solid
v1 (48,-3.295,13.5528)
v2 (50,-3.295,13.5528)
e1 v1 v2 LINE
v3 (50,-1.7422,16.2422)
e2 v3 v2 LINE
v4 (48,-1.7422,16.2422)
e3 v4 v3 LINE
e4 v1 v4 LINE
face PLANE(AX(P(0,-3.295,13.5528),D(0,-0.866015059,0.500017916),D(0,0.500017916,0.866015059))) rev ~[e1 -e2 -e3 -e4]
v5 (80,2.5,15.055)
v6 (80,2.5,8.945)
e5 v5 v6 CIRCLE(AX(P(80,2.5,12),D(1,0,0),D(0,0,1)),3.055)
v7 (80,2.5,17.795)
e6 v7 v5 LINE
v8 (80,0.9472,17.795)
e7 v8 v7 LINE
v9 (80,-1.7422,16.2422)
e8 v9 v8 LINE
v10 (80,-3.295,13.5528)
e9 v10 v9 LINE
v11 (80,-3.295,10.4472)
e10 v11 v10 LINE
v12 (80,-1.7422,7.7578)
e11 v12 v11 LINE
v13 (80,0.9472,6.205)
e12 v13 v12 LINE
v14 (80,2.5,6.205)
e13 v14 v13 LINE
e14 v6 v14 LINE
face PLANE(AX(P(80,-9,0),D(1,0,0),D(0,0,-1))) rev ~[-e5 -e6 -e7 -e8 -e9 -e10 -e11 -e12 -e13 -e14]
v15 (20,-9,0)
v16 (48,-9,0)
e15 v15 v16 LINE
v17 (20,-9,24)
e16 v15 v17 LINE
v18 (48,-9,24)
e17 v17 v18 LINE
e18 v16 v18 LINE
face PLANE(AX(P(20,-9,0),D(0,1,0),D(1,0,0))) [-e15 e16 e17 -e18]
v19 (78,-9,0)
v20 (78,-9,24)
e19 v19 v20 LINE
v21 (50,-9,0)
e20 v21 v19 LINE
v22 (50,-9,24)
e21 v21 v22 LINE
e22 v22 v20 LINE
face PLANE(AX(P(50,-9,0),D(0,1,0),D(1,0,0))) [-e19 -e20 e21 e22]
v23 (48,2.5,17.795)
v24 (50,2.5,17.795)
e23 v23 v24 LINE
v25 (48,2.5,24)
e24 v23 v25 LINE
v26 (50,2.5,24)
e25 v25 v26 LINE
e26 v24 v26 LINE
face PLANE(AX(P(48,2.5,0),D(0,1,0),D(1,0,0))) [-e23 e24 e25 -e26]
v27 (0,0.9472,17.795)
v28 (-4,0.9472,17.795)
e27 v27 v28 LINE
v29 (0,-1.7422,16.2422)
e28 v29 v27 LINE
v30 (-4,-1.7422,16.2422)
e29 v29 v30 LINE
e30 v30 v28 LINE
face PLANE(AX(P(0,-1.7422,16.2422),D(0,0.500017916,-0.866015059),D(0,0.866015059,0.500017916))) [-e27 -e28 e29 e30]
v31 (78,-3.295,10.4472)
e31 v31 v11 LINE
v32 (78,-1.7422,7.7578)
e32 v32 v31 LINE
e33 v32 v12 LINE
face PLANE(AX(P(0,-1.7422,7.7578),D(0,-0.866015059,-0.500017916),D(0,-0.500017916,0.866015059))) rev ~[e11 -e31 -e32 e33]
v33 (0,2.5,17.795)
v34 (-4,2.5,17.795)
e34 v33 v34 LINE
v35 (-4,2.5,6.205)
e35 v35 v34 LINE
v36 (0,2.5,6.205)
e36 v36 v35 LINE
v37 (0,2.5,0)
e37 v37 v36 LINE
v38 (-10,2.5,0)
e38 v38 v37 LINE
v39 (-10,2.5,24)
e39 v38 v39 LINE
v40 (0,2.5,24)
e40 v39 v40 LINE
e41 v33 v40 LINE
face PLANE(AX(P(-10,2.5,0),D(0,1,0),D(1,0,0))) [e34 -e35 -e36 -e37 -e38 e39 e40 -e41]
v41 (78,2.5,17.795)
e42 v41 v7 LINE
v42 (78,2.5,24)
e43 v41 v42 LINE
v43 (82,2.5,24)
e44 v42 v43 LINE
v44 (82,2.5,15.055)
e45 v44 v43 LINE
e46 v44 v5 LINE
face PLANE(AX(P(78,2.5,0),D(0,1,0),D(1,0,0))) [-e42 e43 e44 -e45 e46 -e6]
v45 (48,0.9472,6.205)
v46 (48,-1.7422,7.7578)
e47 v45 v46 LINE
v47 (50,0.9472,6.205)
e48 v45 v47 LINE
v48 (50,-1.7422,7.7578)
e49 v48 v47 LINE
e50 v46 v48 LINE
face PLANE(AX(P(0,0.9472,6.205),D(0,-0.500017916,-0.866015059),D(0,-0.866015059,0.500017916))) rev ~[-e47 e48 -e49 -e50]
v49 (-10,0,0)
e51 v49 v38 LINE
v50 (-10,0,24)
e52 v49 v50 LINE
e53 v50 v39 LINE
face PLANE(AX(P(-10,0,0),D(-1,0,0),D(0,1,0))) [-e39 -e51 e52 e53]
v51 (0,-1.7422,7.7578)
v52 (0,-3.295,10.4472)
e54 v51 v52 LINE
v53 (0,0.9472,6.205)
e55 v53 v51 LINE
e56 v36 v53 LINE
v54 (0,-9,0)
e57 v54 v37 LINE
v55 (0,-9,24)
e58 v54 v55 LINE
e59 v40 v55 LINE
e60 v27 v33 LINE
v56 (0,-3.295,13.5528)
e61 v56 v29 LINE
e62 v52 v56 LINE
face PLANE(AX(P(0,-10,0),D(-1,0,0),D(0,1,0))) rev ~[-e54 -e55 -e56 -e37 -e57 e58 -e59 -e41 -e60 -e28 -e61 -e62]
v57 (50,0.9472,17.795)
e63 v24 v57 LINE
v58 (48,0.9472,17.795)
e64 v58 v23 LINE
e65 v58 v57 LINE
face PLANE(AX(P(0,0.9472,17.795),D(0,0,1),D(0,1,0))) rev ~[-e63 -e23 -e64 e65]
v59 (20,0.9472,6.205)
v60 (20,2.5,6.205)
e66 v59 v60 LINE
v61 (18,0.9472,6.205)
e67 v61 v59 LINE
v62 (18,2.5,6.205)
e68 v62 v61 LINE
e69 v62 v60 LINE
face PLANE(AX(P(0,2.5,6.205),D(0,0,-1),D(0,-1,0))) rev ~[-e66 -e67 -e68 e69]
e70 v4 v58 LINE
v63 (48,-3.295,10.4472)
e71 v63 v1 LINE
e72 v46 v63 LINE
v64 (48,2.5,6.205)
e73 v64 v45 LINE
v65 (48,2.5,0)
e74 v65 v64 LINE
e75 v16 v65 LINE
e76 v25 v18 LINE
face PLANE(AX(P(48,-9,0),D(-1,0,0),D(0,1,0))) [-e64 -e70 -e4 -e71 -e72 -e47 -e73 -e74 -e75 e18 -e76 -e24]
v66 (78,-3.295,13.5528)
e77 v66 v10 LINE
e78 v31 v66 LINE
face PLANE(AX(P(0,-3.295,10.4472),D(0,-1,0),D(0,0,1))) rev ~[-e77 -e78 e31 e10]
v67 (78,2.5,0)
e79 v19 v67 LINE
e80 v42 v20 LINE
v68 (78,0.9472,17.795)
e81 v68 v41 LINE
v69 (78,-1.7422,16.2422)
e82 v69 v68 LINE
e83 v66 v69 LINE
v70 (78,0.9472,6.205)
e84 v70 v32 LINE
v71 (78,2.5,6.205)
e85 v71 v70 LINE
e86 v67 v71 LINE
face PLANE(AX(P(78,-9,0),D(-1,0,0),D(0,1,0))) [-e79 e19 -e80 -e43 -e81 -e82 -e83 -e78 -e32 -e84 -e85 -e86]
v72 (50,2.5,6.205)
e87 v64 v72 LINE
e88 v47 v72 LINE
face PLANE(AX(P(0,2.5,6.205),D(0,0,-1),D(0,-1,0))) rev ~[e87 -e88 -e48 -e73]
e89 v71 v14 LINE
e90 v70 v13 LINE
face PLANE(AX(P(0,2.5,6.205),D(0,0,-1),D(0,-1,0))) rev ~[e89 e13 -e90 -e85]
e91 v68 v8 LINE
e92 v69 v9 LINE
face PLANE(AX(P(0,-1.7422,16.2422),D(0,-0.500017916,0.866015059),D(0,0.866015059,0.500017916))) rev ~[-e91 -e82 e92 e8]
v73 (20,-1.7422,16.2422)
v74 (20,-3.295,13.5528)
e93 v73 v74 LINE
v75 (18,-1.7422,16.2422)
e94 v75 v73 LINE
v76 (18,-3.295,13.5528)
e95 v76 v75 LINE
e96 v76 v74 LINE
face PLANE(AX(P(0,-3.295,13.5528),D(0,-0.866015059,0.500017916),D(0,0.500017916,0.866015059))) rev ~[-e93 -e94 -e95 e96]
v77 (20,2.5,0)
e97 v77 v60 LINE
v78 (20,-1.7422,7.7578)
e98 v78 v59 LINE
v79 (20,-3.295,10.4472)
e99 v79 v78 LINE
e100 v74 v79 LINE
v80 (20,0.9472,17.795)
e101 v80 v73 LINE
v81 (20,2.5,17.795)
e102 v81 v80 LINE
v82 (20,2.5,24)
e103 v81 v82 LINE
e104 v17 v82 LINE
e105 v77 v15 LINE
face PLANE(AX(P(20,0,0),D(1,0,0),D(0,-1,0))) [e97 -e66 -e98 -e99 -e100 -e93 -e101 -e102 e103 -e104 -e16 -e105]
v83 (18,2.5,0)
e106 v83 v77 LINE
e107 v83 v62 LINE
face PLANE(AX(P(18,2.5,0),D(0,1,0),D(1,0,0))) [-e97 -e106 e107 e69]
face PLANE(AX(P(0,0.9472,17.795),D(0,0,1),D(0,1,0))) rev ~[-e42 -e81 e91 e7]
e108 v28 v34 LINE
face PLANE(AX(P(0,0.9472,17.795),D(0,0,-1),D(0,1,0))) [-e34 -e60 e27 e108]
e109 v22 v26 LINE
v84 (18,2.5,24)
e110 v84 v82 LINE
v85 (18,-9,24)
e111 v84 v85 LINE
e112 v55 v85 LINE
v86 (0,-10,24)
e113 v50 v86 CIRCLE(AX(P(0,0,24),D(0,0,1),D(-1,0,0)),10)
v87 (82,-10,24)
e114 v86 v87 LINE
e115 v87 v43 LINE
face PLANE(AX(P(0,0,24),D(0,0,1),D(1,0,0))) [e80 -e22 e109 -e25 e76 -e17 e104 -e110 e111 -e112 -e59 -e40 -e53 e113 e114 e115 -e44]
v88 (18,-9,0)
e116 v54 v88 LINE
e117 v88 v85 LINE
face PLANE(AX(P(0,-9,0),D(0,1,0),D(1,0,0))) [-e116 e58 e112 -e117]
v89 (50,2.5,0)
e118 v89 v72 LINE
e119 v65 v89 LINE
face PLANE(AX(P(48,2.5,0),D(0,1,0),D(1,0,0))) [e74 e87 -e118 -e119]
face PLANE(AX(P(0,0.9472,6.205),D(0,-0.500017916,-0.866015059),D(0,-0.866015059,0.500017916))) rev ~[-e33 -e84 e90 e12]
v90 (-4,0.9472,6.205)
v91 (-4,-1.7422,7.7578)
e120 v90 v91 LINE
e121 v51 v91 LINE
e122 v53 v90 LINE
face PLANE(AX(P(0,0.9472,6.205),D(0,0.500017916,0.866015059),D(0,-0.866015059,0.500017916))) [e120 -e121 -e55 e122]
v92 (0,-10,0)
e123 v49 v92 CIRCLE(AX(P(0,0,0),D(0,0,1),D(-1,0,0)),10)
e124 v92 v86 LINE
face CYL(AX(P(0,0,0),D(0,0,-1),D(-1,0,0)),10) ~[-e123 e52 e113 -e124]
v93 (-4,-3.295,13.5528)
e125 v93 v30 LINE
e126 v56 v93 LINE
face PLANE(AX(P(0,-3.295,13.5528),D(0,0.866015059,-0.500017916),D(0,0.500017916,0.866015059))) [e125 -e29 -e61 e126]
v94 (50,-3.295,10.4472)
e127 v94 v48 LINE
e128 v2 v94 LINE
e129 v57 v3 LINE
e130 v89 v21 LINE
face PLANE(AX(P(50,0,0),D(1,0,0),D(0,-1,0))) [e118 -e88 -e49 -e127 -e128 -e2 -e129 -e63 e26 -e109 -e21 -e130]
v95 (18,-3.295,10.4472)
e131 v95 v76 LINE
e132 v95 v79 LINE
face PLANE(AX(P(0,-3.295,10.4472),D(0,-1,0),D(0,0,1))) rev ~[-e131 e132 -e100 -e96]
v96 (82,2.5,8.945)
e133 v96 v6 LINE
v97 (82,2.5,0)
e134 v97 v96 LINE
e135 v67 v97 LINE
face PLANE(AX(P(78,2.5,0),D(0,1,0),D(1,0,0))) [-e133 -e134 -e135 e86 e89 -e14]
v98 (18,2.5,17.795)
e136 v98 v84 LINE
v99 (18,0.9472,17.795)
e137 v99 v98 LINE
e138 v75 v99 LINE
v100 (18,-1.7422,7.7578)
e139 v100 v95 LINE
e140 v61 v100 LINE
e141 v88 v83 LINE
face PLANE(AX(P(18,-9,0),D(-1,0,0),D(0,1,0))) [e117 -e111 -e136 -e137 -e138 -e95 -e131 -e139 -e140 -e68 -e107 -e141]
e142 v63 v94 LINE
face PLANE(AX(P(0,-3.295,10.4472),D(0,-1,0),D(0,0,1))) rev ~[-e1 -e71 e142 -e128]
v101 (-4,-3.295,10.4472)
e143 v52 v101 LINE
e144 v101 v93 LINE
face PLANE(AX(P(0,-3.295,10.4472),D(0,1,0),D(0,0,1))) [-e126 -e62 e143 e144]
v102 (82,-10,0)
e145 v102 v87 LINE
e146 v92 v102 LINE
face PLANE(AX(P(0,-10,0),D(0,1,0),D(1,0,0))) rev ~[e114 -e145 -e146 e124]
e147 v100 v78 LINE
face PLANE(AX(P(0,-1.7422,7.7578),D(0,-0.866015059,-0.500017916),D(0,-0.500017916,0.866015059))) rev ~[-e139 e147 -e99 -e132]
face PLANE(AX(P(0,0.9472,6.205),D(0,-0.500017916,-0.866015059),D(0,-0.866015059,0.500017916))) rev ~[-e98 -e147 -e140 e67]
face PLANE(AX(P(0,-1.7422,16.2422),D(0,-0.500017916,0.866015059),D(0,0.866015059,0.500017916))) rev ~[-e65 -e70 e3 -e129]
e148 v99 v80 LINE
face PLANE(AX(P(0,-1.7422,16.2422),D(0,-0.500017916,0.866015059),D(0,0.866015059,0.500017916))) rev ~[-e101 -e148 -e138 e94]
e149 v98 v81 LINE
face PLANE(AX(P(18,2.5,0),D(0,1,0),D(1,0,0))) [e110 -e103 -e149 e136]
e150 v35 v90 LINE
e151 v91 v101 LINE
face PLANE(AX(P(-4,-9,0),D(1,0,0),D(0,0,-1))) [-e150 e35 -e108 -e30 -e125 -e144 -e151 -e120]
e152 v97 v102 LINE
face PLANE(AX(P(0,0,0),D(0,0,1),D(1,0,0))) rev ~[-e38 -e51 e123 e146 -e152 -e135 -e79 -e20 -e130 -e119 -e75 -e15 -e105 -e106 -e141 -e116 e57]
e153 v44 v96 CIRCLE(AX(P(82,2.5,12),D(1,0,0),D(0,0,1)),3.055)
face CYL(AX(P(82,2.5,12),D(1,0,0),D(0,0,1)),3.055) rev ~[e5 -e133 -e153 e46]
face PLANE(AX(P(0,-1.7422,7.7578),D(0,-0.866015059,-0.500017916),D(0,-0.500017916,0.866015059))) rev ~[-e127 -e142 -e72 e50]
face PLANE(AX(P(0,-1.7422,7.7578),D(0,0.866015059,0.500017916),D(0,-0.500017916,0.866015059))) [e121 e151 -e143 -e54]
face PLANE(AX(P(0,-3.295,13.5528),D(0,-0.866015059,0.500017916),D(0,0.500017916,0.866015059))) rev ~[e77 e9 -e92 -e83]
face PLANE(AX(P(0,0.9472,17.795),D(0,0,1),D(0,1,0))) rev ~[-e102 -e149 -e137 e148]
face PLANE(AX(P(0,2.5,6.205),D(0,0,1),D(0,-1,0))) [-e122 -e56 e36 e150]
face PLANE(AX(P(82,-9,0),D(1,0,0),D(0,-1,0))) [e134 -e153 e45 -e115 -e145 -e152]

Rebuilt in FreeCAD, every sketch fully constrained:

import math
import FreeCAD as App
import Part
import Sketcher

V = App.Vector
Q = App.Units.Quantity

doc = App.newDocument("Part")
body = doc.addObject("PartDesign::Body", "Body")

sketch1 = body.newObject("Sketcher::SketchObject", "Sketch")
sketch1.AttachmentSupport = (doc.getObject("XY_Plane"), [""])
sketch1.MapMode = "FlatFace"
sketch1.addGeometry(Part.LineSegment(V(0, -9, 0), V(0, -10, 0)), False)
sketch1.addGeometry(Part.LineSegment(V(0, -10, 0), V(82, -10, 0)), False)
sketch1.addGeometry(Part.LineSegment(V(82, -10, 0), V(82, 2.5, 0)), False)
sketch1.addGeometry(Part.LineSegment(V(82, 2.5, 0), V(78, 2.5, 0)), False)
sketch1.addGeometry(Part.LineSegment(V(78, 2.5, 0), V(78, -9, 0)), False)
sketch1.addGeometry(Part.LineSegment(V(78, -9, 0), V(50, -9, 0)), False)
sketch1.addGeometry(Part.LineSegment(V(50, -9, 0), V(50, 2.5, 0)), False)
sketch1.addGeometry(Part.LineSegment(V(50, 2.5, 0), V(48, 2.5, 0)), False)
sketch1.addGeometry(Part.LineSegment(V(48, 2.5, 0), V(48, -9, 0)), False)
sketch1.addGeometry(Part.LineSegment(V(48, -9, 0), V(20, -9, 0)), False)
sketch1.addGeometry(Part.LineSegment(V(20, -9, 0), V(20, 2.5, 0)), False)
sketch1.addGeometry(Part.LineSegment(V(20, 2.5, 0), V(18, 2.5, 0)), False)
sketch1.addGeometry(Part.LineSegment(V(18, 2.5, 0), V(18, -9, 0)), False)
sketch1.addGeometry(Part.LineSegment(V(18, -9, 0), V(0, -9, 0)), False)
sketch1.addConstraint(Sketcher.Constraint("Coincident", 0, 2, 1, 1))
sketch1.addConstraint(Sketcher.Constraint("Coincident", 1, 2, 2, 1))
sketch1.addConstraint(Sketcher.Constraint("Coincident", 2, 2, 3, 1))
sketch1.addConstraint(Sketcher.Constraint("Coincident", 3, 2, 4, 1))
sketch1.addConstraint(Sketcher.Constraint("Coincident", 4, 2, 5, 1))
sketch1.addConstraint(Sketcher.Constraint("Coincident", 5, 2, 6, 1))
sketch1.addConstraint(Sketcher.Constraint("Coincident", 6, 2, 7, 1))
sketch1.addConstraint(Sketcher.Constraint("Coincident", 7, 2, 8, 1))
sketch1.addConstraint(Sketcher.Constraint("Coincident", 8, 2, 9, 1))
sketch1.addConstraint(Sketcher.Constraint("Coincident", 9, 2, 10, 1))
sketch1.addConstraint(Sketcher.Constraint("Coincident", 10, 2, 11, 1))
sketch1.addConstraint(Sketcher.Constraint("Coincident", 11, 2, 12, 1))
sketch1.addConstraint(Sketcher.Constraint("Coincident", 12, 2, 13, 1))
sketch1.addConstraint(Sketcher.Constraint("Coincident", 13, 2, 0, 1))
sketch1.addConstraint(Sketcher.Constraint("Vertical", 0))
sketch1.addConstraint(Sketcher.Constraint("Horizontal", 1))
sketch1.addConstraint(Sketcher.Constraint("Vertical", 2))
sketch1.addConstraint(Sketcher.Constraint("Horizontal", 3))
sketch1.addConstraint(Sketcher.Constraint("Vertical", 4))
sketch1.addConstraint(Sketcher.Constraint("Horizontal", 5))
sketch1.addConstraint(Sketcher.Constraint("Vertical", 6))
sketch1.addConstraint(Sketcher.Constraint("Horizontal", 7))
sketch1.addConstraint(Sketcher.Constraint("Vertical", 8))
sketch1.addConstraint(Sketcher.Constraint("Horizontal", 9))
sketch1.addConstraint(Sketcher.Constraint("Vertical", 10))
sketch1.addConstraint(Sketcher.Constraint("Horizontal", 11))
sketch1.addConstraint(Sketcher.Constraint("Vertical", 12))
sketch1.addConstraint(Sketcher.Constraint("Horizontal", 13))
sketch1.addConstraint(Sketcher.Constraint("PointOnObject", 0, 2, -2))
sketch1.addConstraint(Sketcher.Constraint("Horizontal", 3, 2, 6, 2))
sketch1.addConstraint(Sketcher.Constraint("Horizontal", 5, 2, 8, 2))
sketch1.addConstraint(Sketcher.Constraint("Horizontal", 7, 2, 10, 2))
sketch1.addConstraint(Sketcher.Constraint("Horizontal", 9, 2, 12, 2))
sketch1.addConstraint(Sketcher.Constraint("Equal", 5, 9))
sketch1.addConstraint(Sketcher.Constraint("Equal", 7, 11))
sketch1.addConstraint(Sketcher.Constraint("DistanceX", 3, 2, 3, 1, Q("4 mm")))
sketch1.addConstraint(Sketcher.Constraint("DistanceX", 5, 2, 5, 1, Q("28 mm")))
sketch1.addConstraint(Sketcher.Constraint("DistanceX", 7, 2, 7, 1, Q("2 mm")))
sketch1.addConstraint(Sketcher.Constraint("DistanceX", 13, 2, 13, 1, Q("18 mm")))
sketch1.addConstraint(Sketcher.Constraint("DistanceY", 0, 2, 0, 1, Q("1 mm")))
sketch1.addConstraint(Sketcher.Constraint("DistanceY", 4, 2, 4, 1, Q("11.5 mm")))
sketch1.addConstraint(Sketcher.Constraint("DistanceY", 0, 2, -1, 1, Q("10 mm")))
pad1 = body.newObject("PartDesign::Pad", "Pad")
pad1.Profile = sketch1
pad1.Length = 24

sketch2 = body.newObject("Sketcher::SketchObject", "Sketch001")
sketch2.AttachmentSupport = (doc.getObject("XY_Plane"), [""])
sketch2.MapMode = "FlatFace"
sketch2.addGeometry(Part.LineSegment(V(0, -10, 0), V(0, 2.5, 0)), False)
sketch2.addGeometry(Part.LineSegment(V(0, 2.5, 0), V(-10, 2.5, 0)), False)
sketch2.addGeometry(Part.LineSegment(V(-10, 2.5, 0), V(-10, 0, 0)), False)
sketch2.addGeometry(Part.ArcOfCircle(Part.Circle(V(0, 0, 0), V(0, 0, 1), 10), math.radians(180), math.radians(270)), False)
sketch2.addConstraint(Sketcher.Constraint("Coincident", 0, 2, 1, 1))
sketch2.addConstraint(Sketcher.Constraint("Coincident", 1, 2, 2, 1))
sketch2.addConstraint(Sketcher.Constraint("Tangent", 2, 2, 3, 1))
sketch2.addConstraint(Sketcher.Constraint("Coincident", 3, 2, 0, 1))
sketch2.addConstraint(Sketcher.Constraint("Vertical", 0))
sketch2.addConstraint(Sketcher.Constraint("Horizontal", 1))
sketch2.addConstraint(Sketcher.Constraint("Vertical", 2))
sketch2.addConstraint(Sketcher.Constraint("Coincident", 3, 3, -1, 1))
sketch2.addConstraint(Sketcher.Constraint("PointOnObject", 0, 2, -2))
sketch2.addConstraint(Sketcher.Constraint("Radius", 3, Q("10 mm")))
sketch2.addConstraint(Sketcher.Constraint("DistanceY", 2, 2, 2, 1, Q("2.5 mm")))
pad2 = body.newObject("PartDesign::Pad", "Pad001")
pad2.Profile = sketch2
pad2.Length = 24

sketch3 = body.newObject("Sketcher::SketchObject", "Sketch002")
sketch3.AttachmentSupport = (doc.getObject("YZ_Plane"), [""])
sketch3.MapMode = "FlatFace"
sketch3.addGeometry(Part.LineSegment(V(0.9, 6.2, 0), V(2.5, 6.2, 0)), False)
sketch3.addGeometry(Part.LineSegment(V(2.5, 6.2, 0), V(2.5, 17.8, 0)), False)
sketch3.addGeometry(Part.LineSegment(V(2.5, 17.8, 0), V(0.9, 17.8, 0)), False)
sketch3.addGeometry(Part.LineSegment(V(0.9, 17.8, 0), V(-1.7, 16.2, 0)), False)
sketch3.addGeometry(Part.LineSegment(V(-1.7, 16.2, 0), V(-3.3, 13.6, 0)), False)
sketch3.addGeometry(Part.LineSegment(V(-3.3, 13.6, 0), V(-3.3, 10.4, 0)), False)
sketch3.addGeometry(Part.LineSegment(V(-3.3, 10.4, 0), V(-1.7, 7.8, 0)), False)
sketch3.addGeometry(Part.LineSegment(V(-1.7, 7.8, 0), V(0.9, 6.2, 0)), False)
sketch3.addConstraint(Sketcher.Constraint("Coincident", 0, 2, 1, 1))
sketch3.addConstraint(Sketcher.Constraint("Coincident", 1, 2, 2, 1))
sketch3.addConstraint(Sketcher.Constraint("Coincident", 2, 2, 3, 1))
sketch3.addConstraint(Sketcher.Constraint("Coincident", 3, 2, 4, 1))
sketch3.addConstraint(Sketcher.Constraint("Coincident", 4, 2, 5, 1))
sketch3.addConstraint(Sketcher.Constraint("Coincident", 5, 2, 6, 1))
sketch3.addConstraint(Sketcher.Constraint("Coincident", 6, 2, 7, 1))
sketch3.addConstraint(Sketcher.Constraint("Coincident", 7, 2, 0, 1))
sketch3.addConstraint(Sketcher.Constraint("Horizontal", 0))
sketch3.addConstraint(Sketcher.Constraint("Vertical", 1))
sketch3.addConstraint(Sketcher.Constraint("Horizontal", 2))
sketch3.addConstraint(Sketcher.Constraint("Vertical", 5))
sketch3.addConstraint(Sketcher.Constraint("Perpendicular", 3, 6))
sketch3.addConstraint(Sketcher.Constraint("Perpendicular", 4, 7))
sketch3.addConstraint(Sketcher.Constraint("Vertical", 3, 2, 6, 2))
sketch3.addConstraint(Sketcher.Constraint("Vertical", 2, 2, 7, 2))
sketch3.addConstraint(Sketcher.Constraint("Equal", 3, 4))
sketch3.addConstraint(Sketcher.Constraint("Equal", 4, 6))
sketch3.addConstraint(Sketcher.Constraint("DistanceY", 1, 1, 1, 2, Q("11.59 mm")))
sketch3.addConstraint(Sketcher.Constraint("Angle", 3, Q("-149.9988 deg")))
sketch3.addConstraint(Sketcher.Constraint("DistanceX", -1, 1, 0, 2, Q("2.5 mm")))
sketch3.addConstraint(Sketcher.Constraint("DistanceX", 0, 1, 0, 2, Q("1.5528 mm")))
sketch3.addConstraint(Sketcher.Constraint("DistanceY", 5, 2, 5, 1, Q("3.1056 mm")))
sketch3.addConstraint(Sketcher.Constraint("DistanceY", -1, 1, 0, 2, Q("6.205 mm")))
pocket1 = body.newObject("PartDesign::Pocket", "Pocket")
pocket1.Profile = sketch3
pocket1.Length = 4

sketch4 = body.newObject("Sketcher::SketchObject", "Sketch003")
sketch4.AttachmentSupport = (doc.getObject("YZ_Plane"), [""])
sketch4.MapMode = "FlatFace"
sketch4.addGeometry(Part.LineSegment(V(-1.7, 16.2, 0), V(-3.3, 13.6, 0)), False)
sketch4.addGeometry(Part.LineSegment(V(-3.3, 13.6, 0), V(-3.3, 10.4, 0)), False)
sketch4.addGeometry(Part.LineSegment(V(-3.3, 10.4, 0), V(-1.7, 7.8, 0)), False)
sketch4.addGeometry(Part.LineSegment(V(-1.7, 7.8, 0), V(0.9, 6.2, 0)), False)
sketch4.addGeometry(Part.LineSegment(V(0.9, 6.2, 0), V(2.5, 6.2, 0)), False)
sketch4.addGeometry(Part.LineSegment(V(2.5, 6.2, 0), V(2.5, 17.8, 0)), False)
sketch4.addGeometry(Part.LineSegment(V(2.5, 17.8, 0), V(0.9, 17.8, 0)), False)
sketch4.addGeometry(Part.LineSegment(V(0.9, 17.8, 0), V(-1.7, 16.2, 0)), False)
sketch4.addConstraint(Sketcher.Constraint("Coincident", 0, 2, 1, 1))
sketch4.addConstraint(Sketcher.Constraint("Coincident", 1, 2, 2, 1))
sketch4.addConstraint(Sketcher.Constraint("Coincident", 2, 2, 3, 1))
sketch4.addConstraint(Sketcher.Constraint("Coincident", 3, 2, 4, 1))
sketch4.addConstraint(Sketcher.Constraint("Coincident", 4, 2, 5, 1))
sketch4.addConstraint(Sketcher.Constraint("Coincident", 5, 2, 6, 1))
sketch4.addConstraint(Sketcher.Constraint("Coincident", 6, 2, 7, 1))
sketch4.addConstraint(Sketcher.Constraint("Coincident", 7, 2, 0, 1))
sketch4.addConstraint(Sketcher.Constraint("Vertical", 1))
sketch4.addConstraint(Sketcher.Constraint("Horizontal", 4))
sketch4.addConstraint(Sketcher.Constraint("Vertical", 5))
sketch4.addConstraint(Sketcher.Constraint("Horizontal", 6))
sketch4.addConstraint(Sketcher.Constraint("Perpendicular", 0, 3))
sketch4.addConstraint(Sketcher.Constraint("Perpendicular", 2, 7))
sketch4.addConstraint(Sketcher.Constraint("Vertical", 3, 2, 6, 2))
sketch4.addConstraint(Sketcher.Constraint("Vertical", 2, 2, 7, 2))
sketch4.addConstraint(Sketcher.Constraint("Equal", 0, 2))
sketch4.addConstraint(Sketcher.Constraint("Equal", 2, 3))
sketch4.addConstraint(Sketcher.Constraint("Angle", 0, Q("-120.0012 deg")))
sketch4.addConstraint(Sketcher.Constraint("DistanceY", 5, 1, 5, 2, Q("11.59 mm")))
sketch4.addConstraint(Sketcher.Constraint("DistanceX", -1, 1, 4, 2, Q("2.5 mm")))
sketch4.addConstraint(Sketcher.Constraint("DistanceX", 4, 1, 4, 2, Q("1.5528 mm")))
sketch4.addConstraint(Sketcher.Constraint("DistanceY", 1, 2, 1, 1, Q("3.1056 mm")))
sketch4.addConstraint(Sketcher.Constraint("DistanceY", -1, 1, 3, 2, Q("6.205 mm")))
pocket2 = body.newObject("PartDesign::Pocket", "Pocket001")
pocket2.Profile = sketch4
pocket2.Length = 80
pocket2.Reversed = True

sketch5 = body.newObject("Sketcher::SketchObject", "Sketch004")
sketch5.AttachmentSupport = (doc.getObject("YZ_Plane"), [""])
sketch5.MapMode = "FlatFace"
sketch5.AttachmentOffset = App.Placement(V(0, 0, 82), App.Rotation())
sketch5.addGeometry(Part.LineSegment(V(2.5, 8.9, 0), V(2.5, 15.1, 0)), False)
sketch5.addGeometry(Part.ArcOfCircle(Part.Circle(V(2.5, 12, 0), V(0, 0, 1), 3.1), math.radians(90), math.radians(270)), False)
sketch5.addConstraint(Sketcher.Constraint("Coincident", 0, 1, 1, 2))
sketch5.addConstraint(Sketcher.Constraint("Coincident", 1, 1, 0, 2))
sketch5.addConstraint(Sketcher.Constraint("Vertical", 0))
sketch5.addConstraint(Sketcher.Constraint("Vertical", 1, 3, 0, 1))
sketch5.addConstraint(Sketcher.Constraint("DistanceY", -1, 1, 1, 3, Q("12 mm")))
sketch5.addConstraint(Sketcher.Constraint("Radius", 1, Q("3.055 mm")))
sketch5.addConstraint(Sketcher.Constraint("DistanceX", -1, 1, 1, 3, Q("2.5 mm")))
pocket3 = body.newObject("PartDesign::Pocket", "Pocket002")
pocket3.Profile = sketch5
pocket3.Length = 2

doc.recompute()
